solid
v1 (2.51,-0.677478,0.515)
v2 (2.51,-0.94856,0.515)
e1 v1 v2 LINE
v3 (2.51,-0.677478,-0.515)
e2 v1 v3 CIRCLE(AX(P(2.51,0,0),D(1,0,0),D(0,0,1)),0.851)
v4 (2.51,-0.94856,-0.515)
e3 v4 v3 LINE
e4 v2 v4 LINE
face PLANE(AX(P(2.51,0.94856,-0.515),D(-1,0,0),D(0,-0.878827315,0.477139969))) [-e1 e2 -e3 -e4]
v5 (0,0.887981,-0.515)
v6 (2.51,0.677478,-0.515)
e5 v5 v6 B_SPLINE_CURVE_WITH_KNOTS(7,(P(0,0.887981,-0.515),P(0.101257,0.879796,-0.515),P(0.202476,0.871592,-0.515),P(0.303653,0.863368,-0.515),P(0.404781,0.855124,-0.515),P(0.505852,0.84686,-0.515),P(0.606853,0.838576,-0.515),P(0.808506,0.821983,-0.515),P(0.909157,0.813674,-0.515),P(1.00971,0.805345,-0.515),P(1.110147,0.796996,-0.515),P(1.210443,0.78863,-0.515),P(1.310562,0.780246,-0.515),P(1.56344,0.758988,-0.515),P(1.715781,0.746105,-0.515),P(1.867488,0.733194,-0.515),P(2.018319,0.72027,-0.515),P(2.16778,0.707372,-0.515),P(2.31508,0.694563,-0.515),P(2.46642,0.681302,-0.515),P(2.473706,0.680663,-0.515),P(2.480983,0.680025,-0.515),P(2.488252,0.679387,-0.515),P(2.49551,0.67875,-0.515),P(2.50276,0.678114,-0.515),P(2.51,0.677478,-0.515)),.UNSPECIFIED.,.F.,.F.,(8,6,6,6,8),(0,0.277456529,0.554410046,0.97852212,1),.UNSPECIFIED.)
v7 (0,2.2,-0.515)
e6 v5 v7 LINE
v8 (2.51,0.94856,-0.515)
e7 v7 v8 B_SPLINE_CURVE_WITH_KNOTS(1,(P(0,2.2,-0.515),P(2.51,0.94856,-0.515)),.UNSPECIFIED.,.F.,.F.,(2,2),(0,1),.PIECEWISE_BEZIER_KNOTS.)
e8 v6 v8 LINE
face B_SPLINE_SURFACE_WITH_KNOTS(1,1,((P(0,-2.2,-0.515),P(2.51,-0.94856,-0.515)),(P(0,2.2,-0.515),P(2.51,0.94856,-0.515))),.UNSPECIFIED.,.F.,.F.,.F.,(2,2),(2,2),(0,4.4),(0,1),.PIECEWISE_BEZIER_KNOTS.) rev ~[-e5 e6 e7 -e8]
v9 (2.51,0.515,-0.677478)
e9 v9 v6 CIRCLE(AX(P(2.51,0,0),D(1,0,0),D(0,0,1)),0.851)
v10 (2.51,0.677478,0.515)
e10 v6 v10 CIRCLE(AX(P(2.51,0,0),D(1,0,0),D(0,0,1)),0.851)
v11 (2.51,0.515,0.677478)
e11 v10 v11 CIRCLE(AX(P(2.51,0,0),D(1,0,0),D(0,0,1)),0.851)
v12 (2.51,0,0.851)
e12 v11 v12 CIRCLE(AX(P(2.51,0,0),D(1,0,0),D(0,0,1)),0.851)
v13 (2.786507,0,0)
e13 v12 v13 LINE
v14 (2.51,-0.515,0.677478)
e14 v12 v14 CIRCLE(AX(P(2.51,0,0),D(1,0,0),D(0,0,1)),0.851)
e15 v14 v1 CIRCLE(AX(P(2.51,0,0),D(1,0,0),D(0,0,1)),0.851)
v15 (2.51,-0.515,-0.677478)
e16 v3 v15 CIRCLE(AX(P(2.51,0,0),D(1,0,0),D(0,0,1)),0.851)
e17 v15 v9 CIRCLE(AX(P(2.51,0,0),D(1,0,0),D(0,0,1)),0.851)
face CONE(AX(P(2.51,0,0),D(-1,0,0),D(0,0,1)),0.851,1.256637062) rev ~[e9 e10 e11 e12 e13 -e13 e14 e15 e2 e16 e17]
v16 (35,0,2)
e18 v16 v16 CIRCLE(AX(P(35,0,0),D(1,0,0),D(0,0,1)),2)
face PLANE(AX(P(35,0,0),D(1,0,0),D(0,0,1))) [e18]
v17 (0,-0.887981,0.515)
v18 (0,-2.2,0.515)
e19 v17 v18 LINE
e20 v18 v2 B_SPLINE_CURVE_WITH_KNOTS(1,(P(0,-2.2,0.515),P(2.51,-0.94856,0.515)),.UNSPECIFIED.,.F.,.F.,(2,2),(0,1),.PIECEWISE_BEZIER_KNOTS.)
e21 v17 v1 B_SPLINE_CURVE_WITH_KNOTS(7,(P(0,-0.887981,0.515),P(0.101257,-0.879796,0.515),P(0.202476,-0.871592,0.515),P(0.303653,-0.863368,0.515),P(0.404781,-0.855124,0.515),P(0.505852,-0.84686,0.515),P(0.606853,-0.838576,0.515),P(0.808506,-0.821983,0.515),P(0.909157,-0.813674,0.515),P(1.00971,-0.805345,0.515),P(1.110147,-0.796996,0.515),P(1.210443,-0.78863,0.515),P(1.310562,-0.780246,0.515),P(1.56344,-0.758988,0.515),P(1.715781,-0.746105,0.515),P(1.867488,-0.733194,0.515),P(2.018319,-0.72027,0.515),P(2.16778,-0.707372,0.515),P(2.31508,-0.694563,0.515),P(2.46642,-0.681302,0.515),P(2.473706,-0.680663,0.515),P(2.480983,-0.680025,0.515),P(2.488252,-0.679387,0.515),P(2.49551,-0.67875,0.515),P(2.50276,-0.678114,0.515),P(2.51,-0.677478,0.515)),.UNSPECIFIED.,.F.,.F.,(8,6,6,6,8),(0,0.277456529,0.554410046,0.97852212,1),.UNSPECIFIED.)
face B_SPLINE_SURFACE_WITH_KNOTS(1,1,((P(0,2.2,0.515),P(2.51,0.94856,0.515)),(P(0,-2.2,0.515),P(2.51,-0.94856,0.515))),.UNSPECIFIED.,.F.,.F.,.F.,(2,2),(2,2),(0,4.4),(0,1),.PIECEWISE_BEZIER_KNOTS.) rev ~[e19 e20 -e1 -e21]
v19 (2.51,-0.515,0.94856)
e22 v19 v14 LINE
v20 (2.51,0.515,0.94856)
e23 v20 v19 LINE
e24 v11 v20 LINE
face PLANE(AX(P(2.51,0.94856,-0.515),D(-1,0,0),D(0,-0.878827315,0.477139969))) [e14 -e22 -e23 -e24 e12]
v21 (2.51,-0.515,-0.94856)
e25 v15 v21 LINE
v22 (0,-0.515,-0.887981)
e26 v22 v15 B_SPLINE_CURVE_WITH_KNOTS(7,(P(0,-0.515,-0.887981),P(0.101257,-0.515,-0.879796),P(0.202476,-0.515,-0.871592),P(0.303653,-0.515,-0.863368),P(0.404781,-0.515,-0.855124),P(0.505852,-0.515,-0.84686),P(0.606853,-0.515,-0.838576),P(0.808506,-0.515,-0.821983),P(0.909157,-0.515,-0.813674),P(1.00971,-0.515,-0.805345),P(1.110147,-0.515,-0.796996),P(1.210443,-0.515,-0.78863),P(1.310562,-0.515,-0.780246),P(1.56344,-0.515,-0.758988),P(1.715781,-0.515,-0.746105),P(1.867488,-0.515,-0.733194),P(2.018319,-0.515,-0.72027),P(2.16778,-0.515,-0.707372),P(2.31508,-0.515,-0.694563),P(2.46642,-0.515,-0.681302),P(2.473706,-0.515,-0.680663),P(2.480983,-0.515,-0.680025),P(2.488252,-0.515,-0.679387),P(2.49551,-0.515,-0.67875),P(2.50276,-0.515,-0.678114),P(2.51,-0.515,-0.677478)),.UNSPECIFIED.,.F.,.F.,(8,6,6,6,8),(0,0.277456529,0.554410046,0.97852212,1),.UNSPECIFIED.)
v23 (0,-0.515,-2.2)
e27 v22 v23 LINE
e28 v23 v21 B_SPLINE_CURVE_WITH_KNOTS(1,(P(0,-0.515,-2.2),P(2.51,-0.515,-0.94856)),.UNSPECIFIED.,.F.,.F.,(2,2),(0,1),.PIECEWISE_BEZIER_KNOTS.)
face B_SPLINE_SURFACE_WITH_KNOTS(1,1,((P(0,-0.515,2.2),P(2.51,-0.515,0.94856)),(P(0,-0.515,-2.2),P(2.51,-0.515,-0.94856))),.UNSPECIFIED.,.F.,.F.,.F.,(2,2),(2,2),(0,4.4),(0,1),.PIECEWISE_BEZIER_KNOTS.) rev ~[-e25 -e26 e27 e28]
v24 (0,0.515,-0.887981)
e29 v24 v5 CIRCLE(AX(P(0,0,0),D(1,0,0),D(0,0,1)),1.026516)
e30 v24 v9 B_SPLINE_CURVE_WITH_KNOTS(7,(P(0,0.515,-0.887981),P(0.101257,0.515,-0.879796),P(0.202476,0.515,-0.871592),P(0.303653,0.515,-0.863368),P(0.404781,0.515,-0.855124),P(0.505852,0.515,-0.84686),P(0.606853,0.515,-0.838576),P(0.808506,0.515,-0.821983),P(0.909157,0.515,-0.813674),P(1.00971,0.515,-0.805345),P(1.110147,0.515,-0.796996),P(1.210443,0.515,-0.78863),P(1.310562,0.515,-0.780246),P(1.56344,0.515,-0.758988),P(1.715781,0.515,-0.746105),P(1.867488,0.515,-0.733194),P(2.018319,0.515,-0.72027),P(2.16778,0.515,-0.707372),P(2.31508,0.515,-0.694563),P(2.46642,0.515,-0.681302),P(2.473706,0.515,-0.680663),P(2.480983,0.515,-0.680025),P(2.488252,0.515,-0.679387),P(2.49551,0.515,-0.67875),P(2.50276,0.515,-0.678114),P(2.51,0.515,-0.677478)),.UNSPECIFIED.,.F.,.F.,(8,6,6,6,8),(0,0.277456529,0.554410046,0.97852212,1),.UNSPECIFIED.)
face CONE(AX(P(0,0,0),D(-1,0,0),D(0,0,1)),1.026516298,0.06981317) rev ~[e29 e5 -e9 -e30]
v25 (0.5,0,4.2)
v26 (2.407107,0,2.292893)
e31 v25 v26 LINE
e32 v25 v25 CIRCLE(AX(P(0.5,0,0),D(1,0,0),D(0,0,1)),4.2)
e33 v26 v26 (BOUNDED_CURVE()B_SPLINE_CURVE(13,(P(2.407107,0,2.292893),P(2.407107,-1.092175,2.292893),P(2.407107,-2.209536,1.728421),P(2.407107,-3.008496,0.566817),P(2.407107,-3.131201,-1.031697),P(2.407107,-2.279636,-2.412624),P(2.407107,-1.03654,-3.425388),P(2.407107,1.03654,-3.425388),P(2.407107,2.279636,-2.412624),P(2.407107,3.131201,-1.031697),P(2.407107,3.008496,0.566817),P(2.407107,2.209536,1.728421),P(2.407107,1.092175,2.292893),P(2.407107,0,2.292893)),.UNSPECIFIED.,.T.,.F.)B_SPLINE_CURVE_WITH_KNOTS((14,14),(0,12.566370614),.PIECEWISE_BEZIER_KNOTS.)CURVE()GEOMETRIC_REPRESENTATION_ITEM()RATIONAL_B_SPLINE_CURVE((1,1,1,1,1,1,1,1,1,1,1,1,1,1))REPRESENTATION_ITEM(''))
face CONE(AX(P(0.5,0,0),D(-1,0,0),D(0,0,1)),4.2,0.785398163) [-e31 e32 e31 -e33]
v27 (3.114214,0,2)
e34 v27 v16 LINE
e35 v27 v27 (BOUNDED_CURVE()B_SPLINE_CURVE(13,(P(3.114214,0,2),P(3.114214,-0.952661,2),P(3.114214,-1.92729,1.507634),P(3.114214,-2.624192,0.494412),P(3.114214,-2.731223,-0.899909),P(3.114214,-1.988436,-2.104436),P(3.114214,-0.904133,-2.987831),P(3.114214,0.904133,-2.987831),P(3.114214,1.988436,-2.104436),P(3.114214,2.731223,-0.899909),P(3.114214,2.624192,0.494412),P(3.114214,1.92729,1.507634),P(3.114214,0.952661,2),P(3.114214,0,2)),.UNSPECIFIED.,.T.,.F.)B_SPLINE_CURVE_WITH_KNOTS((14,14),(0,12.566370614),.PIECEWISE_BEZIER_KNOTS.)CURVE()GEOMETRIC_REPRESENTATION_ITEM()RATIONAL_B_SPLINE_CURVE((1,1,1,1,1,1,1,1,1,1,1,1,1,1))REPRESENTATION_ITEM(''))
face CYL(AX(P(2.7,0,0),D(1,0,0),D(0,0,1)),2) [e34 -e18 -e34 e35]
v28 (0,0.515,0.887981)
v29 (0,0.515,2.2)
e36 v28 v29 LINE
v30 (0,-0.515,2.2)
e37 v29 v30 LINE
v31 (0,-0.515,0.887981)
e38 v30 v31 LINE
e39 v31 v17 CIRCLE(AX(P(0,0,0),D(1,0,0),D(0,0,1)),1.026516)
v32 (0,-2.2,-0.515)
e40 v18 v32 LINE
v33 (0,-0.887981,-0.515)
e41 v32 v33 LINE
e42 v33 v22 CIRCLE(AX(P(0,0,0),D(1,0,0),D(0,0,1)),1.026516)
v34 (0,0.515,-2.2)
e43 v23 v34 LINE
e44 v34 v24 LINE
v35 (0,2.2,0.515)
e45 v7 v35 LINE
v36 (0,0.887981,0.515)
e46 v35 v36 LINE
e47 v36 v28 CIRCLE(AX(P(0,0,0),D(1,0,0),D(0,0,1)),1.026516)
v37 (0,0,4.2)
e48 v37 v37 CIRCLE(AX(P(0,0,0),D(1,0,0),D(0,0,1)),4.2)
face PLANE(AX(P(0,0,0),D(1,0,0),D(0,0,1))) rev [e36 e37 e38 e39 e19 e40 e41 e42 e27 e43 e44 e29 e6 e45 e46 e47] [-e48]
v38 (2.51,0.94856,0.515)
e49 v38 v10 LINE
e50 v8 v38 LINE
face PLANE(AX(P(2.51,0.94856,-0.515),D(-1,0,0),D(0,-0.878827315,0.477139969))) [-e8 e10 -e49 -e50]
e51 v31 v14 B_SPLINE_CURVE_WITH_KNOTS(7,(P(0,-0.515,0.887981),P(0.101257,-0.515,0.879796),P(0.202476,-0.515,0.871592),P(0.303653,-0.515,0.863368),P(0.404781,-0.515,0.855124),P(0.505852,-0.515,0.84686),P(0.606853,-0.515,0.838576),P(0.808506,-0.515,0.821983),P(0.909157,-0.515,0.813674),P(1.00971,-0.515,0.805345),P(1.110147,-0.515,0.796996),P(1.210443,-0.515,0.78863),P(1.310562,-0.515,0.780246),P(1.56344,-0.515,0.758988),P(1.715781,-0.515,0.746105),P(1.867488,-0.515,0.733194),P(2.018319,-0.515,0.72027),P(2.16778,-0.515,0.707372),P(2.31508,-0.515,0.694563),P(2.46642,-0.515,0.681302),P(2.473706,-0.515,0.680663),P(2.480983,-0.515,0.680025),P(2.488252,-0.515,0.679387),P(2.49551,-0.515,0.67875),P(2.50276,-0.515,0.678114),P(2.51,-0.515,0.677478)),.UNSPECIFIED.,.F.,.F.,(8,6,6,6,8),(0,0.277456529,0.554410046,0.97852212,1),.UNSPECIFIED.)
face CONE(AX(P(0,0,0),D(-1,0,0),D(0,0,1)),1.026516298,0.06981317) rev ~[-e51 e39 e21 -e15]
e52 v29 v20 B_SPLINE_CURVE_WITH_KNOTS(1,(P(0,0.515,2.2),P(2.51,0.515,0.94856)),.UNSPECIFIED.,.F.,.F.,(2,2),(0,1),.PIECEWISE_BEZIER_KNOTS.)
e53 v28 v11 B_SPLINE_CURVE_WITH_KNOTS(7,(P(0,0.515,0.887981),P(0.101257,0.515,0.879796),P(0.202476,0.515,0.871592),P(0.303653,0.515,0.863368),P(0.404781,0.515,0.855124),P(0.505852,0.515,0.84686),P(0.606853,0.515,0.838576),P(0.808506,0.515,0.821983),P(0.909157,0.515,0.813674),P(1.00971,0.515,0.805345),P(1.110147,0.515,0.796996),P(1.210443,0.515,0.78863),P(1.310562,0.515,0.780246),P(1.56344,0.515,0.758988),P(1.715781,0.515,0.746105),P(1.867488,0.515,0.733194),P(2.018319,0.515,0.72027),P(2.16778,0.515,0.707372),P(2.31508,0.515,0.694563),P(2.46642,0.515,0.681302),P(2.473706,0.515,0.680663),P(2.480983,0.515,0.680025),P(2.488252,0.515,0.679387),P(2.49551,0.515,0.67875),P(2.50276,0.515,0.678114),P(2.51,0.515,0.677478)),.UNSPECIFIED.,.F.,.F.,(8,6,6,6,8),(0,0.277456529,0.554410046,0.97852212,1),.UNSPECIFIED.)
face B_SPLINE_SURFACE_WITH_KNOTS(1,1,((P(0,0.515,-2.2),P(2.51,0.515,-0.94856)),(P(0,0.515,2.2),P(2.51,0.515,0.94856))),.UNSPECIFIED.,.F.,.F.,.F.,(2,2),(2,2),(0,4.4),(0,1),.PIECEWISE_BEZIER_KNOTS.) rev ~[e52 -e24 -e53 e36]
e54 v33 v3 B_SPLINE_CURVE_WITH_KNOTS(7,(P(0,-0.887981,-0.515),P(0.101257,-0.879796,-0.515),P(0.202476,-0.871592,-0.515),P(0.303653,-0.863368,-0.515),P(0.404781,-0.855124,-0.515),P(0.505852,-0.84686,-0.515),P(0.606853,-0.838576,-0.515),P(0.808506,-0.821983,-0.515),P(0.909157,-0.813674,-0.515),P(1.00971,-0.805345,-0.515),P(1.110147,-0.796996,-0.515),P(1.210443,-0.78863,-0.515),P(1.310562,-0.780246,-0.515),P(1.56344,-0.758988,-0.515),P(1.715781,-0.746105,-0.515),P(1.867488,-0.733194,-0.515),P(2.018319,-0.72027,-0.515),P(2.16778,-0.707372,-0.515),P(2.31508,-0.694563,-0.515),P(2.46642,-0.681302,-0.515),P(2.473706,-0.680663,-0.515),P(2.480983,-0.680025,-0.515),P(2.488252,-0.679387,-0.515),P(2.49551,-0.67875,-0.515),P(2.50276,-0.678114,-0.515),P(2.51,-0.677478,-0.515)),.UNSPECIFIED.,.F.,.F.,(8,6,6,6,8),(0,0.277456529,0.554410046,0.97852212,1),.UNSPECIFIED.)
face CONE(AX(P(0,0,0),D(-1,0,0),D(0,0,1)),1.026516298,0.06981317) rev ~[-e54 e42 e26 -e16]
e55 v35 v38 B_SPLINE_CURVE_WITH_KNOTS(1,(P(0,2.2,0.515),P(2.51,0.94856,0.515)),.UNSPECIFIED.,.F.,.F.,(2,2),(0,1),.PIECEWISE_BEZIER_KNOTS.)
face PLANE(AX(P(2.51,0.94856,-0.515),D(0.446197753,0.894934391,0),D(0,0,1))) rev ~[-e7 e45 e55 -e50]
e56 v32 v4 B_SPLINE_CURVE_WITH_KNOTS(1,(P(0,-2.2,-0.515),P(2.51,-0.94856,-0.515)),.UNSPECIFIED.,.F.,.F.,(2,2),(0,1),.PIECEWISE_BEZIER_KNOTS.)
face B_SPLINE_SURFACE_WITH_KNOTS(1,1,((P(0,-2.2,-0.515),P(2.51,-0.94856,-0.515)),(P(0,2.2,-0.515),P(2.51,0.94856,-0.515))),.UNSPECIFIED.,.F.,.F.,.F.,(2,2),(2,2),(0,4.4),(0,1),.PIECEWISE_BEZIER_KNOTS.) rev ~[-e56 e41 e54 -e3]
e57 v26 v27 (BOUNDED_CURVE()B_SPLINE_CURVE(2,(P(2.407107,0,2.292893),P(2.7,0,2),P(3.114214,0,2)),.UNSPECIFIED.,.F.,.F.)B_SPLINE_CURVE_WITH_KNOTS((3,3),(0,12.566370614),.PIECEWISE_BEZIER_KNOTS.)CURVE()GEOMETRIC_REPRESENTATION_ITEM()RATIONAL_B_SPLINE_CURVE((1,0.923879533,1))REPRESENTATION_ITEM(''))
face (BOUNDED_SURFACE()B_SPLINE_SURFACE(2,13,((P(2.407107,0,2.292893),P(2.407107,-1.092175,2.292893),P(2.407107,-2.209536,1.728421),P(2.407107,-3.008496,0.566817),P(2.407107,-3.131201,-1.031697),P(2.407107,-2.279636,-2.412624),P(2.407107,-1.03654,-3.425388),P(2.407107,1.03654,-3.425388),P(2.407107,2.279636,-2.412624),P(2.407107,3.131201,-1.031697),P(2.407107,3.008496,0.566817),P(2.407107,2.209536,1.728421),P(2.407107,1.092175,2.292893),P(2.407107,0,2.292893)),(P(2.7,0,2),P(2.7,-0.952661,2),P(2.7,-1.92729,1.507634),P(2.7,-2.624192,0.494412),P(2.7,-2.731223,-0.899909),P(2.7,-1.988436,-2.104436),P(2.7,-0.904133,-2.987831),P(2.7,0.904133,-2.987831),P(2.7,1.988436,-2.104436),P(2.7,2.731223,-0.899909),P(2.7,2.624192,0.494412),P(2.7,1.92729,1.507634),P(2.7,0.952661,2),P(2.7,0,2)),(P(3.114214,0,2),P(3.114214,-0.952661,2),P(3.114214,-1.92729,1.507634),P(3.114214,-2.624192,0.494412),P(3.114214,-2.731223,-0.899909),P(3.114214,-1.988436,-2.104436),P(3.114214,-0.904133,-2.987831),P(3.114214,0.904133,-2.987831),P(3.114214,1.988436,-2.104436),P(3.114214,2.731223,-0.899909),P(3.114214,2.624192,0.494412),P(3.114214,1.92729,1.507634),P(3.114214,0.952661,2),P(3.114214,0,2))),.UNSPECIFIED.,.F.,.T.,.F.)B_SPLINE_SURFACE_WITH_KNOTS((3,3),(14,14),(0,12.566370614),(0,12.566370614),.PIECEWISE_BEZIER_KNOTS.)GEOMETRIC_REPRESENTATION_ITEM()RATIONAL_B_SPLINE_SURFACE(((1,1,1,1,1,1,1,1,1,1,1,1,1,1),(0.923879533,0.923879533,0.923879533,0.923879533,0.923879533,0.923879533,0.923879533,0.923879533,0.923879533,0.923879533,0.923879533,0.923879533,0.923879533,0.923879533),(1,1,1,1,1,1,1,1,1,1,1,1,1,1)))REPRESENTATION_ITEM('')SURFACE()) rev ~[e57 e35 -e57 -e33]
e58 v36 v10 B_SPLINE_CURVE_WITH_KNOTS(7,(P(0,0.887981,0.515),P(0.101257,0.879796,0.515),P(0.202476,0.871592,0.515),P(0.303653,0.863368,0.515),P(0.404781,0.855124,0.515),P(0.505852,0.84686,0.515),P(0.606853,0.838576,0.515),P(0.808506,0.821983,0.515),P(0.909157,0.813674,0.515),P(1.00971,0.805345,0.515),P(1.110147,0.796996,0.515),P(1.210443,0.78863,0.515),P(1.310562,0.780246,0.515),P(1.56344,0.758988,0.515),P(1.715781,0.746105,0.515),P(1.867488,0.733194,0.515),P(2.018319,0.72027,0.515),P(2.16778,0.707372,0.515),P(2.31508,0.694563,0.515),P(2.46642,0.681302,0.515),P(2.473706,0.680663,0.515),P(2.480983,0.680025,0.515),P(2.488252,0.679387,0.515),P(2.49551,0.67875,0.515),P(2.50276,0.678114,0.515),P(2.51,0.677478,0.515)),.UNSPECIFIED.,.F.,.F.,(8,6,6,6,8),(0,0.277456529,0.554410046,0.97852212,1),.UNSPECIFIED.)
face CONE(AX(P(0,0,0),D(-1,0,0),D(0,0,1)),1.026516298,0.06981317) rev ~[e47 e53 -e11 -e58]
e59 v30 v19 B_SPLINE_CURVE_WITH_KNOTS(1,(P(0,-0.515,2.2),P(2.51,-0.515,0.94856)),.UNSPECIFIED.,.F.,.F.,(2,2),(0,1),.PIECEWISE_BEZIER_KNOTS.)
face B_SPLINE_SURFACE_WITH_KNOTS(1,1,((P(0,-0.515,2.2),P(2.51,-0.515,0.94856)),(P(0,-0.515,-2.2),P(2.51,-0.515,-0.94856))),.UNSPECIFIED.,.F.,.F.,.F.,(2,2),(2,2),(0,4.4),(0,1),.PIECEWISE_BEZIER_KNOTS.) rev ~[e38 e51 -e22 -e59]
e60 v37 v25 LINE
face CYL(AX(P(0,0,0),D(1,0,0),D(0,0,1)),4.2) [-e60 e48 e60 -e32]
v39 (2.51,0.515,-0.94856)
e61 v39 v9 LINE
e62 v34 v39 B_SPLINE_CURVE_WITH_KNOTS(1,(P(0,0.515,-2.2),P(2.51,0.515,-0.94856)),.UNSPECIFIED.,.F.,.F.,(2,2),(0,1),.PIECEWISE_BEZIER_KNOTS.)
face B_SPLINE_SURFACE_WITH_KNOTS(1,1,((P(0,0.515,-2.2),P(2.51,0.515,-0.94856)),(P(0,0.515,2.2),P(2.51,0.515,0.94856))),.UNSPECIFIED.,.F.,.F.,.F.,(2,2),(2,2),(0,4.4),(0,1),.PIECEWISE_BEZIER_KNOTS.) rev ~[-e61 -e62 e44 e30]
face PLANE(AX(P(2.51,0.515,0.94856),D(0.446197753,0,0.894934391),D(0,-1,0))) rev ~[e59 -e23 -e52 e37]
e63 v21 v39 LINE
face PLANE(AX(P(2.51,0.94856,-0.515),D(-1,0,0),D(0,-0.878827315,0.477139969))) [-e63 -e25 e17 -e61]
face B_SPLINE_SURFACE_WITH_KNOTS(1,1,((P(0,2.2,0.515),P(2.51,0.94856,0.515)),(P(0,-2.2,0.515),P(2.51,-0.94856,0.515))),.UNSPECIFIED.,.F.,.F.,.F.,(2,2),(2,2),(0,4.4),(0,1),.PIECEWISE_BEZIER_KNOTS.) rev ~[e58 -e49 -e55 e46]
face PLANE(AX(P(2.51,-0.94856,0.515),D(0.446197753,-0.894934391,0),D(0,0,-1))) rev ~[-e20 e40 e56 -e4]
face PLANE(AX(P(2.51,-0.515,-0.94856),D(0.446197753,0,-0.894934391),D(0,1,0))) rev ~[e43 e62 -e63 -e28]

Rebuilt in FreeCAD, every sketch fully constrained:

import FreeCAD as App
import Part
import Sketcher
from FreeCAD import Vector
Q = App.Units.Quantity


def edges_at(feature, points):
    """Names of the edges that pass closest to the given points."""
    edges = feature.Shape.Edges
    near = lambda p: min(range(len(edges)), key=lambda i: edges[i].distToShape(Part.Vertex(*p))[0])
    return sorted({f"Edge{near(p) + 1}" for p in points})


def add_polygon(sketch, points):
    """Adds a closed chain of lines whose ends are joined by coincident constraints."""
    first, n = sketch.GeometryCount, len(points)
    for a, b in zip(points, points[1:] + points[:1]):
        sketch.addGeometry(Part.LineSegment(App.Vector(*a, 0), App.Vector(*b, 0)), False)
    for i in range(n):
        sketch.addConstraint(Sketcher.Constraint("Coincident", first + i, 2, first + (i + 1) % n, 1))

doc = App.newDocument("Part")
body = doc.addObject("PartDesign::Body", "Body")

# Sketch on XY plane
sketch1 = body.newObject("Sketcher::SketchObject", "Sketch")
sketch1.AttachmentSupport = (doc.getObject("XY_Plane"), [""])
sketch1.MapMode = "FlatFace"
add_polygon(sketch1, [(0, 4.2), (0, 0), (35, 0), (35, 2), (2.7, 2), (0.5, 4.2)])  # lines 0-5
sketch1.addConstraint([
    Sketcher.Constraint("Vertical", 0),
    Sketcher.Constraint("Horizontal", 1),
    Sketcher.Constraint("Vertical", 2),
    Sketcher.Constraint("Horizontal", 3),
    Sketcher.Constraint("Horizontal", 5),
    Sketcher.Constraint("Coincident", 0, 2, -1, 1),
    Sketcher.Constraint("DistanceX", 1, 1, 1, 2, 35.0),
    Sketcher.Constraint("DistanceY", 2, 1, 2, 2, 2.0),
    Sketcher.Constraint("Angle", 4, Q("135 deg")),
    Sketcher.Constraint("DistanceX", 3, 2, 3, 1, 32.3),
    Sketcher.Constraint("DistanceX", 5, 2, 5, 1, 0.5),
])
revolution = body.newObject("PartDesign::Revolution", "Revolution")
revolution.Profile = sketch1
revolution.ReferenceAxis = (sketch1, ["H_Axis"])
revolution.Angle = 360
doc.recompute()

fillet = body.newObject("PartDesign::Fillet", "Fillet")
fillet.Base = (revolution, edges_at(revolution, [(2.7, 0, -2)]))
fillet.Radius = 1

# Sketch on YZ plane
sketch2 = body.newObject("Sketcher::SketchObject", "Sketch001")
sketch2.AttachmentSupport = (doc.getObject("YZ_Plane"), [""])
sketch2.MapMode = "FlatFace"
add_polygon(sketch2, [(2.2, 0.5), (2.2, -0.5), (-2.2, -0.5), (-2.2, 0.5)])  # lines 0-3
sketch2.addConstraint([
    Sketcher.Constraint("Vertical", 0),
    Sketcher.Constraint("Horizontal", 1),
    Sketcher.Constraint("Vertical", 2),
    Sketcher.Constraint("Horizontal", 3),
    Sketcher.Constraint("Symmetric", 0, 2, 2, 2, -1, 1),
    Sketcher.Constraint("DistanceX", 1, 2, 1, 1, 4.4),
    Sketcher.Constraint("DistanceY", 0, 2, 0, 1, 1.03),
])

# Sketch on YZ plane
sketch3 = body.newObject("Sketcher::SketchObject", "Sketch002")
sketch3.AttachmentSupport = (doc.getObject("YZ_Plane"), [""])
sketch3.MapMode = "FlatFace"
sketch3.AttachmentOffset = App.Placement(Vector(0, 0, 2.51), App.Rotation())
add_polygon(sketch3, [(0.9, 0.5), (0.9, -0.5), (-0.9, -0.5), (-0.9, 0.5)])  # lines 0-3
sketch3.addConstraint([
    Sketcher.Constraint("Vertical", 0),
    Sketcher.Constraint("Horizontal", 1),
    Sketcher.Constraint("Vertical", 2),
    Sketcher.Constraint("Horizontal", 3),
    Sketcher.Constraint("Symmetric", 0, 2, 2, 2, -1, 1),
    Sketcher.Constraint("DistanceY", 0, 2, 0, 1, 1.03),
    Sketcher.Constraint("DistanceX", 1, 2, 1, 1, 1.897121),
])

subtractiveloft = body.newObject("PartDesign::SubtractiveLoft", "SubtractiveLoft")
subtractiveloft.Profile = sketch2
subtractiveloft.Sections = [sketch3]
doc.recompute()

polarpattern = body.newObject("PartDesign::PolarPattern", "PolarPattern")
polarpattern.Originals = [subtractiveloft]
polarpattern.Axis = (doc.getObject("X_Axis"), [""])
polarpattern.Angle = 90
polarpattern.Occurrences = 2
body.Tip = polarpattern

# Sketch on XY plane
sketch4 = body.newObject("Sketcher::SketchObject", "Sketch003")
sketch4.AttachmentSupport = (doc.getObject("XY_Plane"), [""])
sketch4.MapMode = "FlatFace"
add_polygon(sketch4, [(0, 1), (0, 0), (2.8, 0), (2.5, 0.9)])  # lines 0-3
sketch4.addConstraint([
    Sketcher.Constraint("Vertical", 0),
    Sketcher.Constraint("Horizontal", 1),
    Sketcher.Constraint("Coincident", 0, 2, -1, 1),
    Sketcher.Constraint("Angle", 2, Q("108 deg")),
    Sketcher.Constraint("Angle", 3, Q("176 deg")),
    Sketcher.Constraint("DistanceX", -1, 1, 2, 2, 2.51),
    Sketcher.Constraint("DistanceY", -1, 1, 2, 2, 0.851),
])
groove = body.newObject("PartDesign::Groove", "Groove")
groove.Profile = sketch4
groove.ReferenceAxis = (sketch4, ["H_Axis"])
groove.Angle = 360

doc.recompute()
